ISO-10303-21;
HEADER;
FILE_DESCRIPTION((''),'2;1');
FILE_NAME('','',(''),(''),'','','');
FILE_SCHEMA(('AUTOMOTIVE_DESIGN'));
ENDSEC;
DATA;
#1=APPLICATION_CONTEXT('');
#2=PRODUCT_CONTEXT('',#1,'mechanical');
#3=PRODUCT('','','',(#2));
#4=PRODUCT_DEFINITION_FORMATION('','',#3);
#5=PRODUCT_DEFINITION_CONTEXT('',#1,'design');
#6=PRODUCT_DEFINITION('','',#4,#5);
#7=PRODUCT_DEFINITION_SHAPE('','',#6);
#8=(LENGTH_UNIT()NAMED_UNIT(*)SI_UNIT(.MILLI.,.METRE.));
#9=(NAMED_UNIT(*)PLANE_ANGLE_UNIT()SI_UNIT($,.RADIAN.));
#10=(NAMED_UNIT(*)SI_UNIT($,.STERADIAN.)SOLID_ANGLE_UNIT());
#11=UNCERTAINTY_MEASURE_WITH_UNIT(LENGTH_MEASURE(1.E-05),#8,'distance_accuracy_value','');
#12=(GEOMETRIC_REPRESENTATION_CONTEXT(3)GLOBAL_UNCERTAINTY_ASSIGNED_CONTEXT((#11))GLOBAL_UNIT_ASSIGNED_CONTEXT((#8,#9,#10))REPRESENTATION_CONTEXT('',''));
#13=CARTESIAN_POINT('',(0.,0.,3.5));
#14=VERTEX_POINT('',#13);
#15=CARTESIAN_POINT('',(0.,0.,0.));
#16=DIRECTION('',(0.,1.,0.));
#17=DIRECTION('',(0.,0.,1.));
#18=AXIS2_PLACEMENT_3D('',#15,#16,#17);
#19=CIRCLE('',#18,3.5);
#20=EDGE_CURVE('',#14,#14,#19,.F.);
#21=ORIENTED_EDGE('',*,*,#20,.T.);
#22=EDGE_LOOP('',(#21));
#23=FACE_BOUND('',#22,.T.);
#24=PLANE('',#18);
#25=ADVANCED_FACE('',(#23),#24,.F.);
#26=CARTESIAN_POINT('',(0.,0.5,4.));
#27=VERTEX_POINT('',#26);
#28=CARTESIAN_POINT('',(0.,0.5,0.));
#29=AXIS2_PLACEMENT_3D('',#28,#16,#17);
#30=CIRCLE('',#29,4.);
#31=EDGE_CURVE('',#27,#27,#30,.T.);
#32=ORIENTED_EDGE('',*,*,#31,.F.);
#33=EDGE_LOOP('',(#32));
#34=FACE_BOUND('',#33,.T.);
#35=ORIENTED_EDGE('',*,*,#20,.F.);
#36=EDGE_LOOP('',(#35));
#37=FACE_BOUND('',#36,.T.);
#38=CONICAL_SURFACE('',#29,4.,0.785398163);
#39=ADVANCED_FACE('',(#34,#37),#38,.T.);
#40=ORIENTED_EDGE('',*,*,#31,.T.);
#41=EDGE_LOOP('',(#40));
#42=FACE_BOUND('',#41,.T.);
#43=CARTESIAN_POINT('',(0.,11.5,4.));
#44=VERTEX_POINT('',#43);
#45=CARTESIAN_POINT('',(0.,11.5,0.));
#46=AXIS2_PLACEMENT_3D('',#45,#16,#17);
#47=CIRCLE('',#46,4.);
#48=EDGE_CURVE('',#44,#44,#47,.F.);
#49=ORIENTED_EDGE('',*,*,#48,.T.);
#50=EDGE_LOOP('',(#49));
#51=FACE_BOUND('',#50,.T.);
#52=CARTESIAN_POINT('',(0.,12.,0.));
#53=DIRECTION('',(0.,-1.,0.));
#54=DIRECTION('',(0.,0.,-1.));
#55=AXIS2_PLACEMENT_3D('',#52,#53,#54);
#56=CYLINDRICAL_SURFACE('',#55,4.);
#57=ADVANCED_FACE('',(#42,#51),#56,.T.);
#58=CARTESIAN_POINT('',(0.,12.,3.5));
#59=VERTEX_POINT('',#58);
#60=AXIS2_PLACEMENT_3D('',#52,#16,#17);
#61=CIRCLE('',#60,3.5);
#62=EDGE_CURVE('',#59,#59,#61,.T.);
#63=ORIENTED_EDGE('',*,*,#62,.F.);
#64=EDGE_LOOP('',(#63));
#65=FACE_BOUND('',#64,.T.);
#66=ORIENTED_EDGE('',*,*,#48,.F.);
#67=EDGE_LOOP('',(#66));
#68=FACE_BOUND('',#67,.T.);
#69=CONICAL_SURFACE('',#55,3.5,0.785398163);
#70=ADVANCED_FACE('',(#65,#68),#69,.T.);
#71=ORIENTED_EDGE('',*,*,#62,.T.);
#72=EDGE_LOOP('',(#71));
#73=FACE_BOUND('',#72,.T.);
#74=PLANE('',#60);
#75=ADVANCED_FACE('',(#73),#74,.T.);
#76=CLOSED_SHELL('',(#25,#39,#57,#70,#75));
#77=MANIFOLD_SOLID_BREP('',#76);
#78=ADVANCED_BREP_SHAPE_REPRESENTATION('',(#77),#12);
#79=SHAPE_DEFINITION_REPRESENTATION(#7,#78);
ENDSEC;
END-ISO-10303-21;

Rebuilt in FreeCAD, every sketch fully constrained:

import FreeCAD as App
import Part
import Sketcher
from FreeCAD import Vector


def edges_at(feature, points):
    """Names of the edges that pass closest to the given points."""
    edges = feature.Shape.Edges
    near = lambda p: min(range(len(edges)), key=lambda i: edges[i].distToShape(Part.Vertex(*p))[0])
    return sorted({f"Edge{near(p) + 1}" for p in points})

doc = App.newDocument("Part")
params = doc.addObject("Spreadsheet::Sheet", "Params")
for row, (alias, value) in enumerate([
    ("sketch1_diameter", "8 mm"),
    ("pad1_length", "12 mm"),
    ("chamfer_size", "0.5 mm"),
], start=1):
    params.set(f"A{row}", alias)
    params.set(f"B{row}", "=" + value)
    params.setAlias(f"B{row}", alias)

body = doc.addObject("PartDesign::Body", "Body")

# Sketch on XZ plane
sketch1 = body.newObject("Sketcher::SketchObject", "Sketch")
sketch1.AttachmentSupport = (doc.getObject("XZ_Plane"), [""])
sketch1.MapMode = "FlatFace"
sketch1.addGeometry(Part.Circle(Vector(0, 0, 0), Vector(0, 0, 1), 4), False)
sketch1.addConstraint([
    Sketcher.Constraint("Coincident", 0, 3, -1, 1),
    Sketcher.Constraint("Diameter", 0, 8.0),
])
sketch1.setExpression("Constraints[1]", "Params.sketch1_diameter")
pad1 = body.newObject("PartDesign::Pad", "Pad")
pad1.Profile = sketch1
pad1.setExpression("Length", "Params.pad1_length")
pad1.Reversed = True
doc.recompute()

chamfer = body.newObject("PartDesign::Chamfer", "Chamfer")
chamfer.Base = (pad1, edges_at(pad1, [(0, 0, -4), (0, 12, -4)]))
chamfer.setExpression("Size", "Params.chamfer_size")

doc.recompute()
